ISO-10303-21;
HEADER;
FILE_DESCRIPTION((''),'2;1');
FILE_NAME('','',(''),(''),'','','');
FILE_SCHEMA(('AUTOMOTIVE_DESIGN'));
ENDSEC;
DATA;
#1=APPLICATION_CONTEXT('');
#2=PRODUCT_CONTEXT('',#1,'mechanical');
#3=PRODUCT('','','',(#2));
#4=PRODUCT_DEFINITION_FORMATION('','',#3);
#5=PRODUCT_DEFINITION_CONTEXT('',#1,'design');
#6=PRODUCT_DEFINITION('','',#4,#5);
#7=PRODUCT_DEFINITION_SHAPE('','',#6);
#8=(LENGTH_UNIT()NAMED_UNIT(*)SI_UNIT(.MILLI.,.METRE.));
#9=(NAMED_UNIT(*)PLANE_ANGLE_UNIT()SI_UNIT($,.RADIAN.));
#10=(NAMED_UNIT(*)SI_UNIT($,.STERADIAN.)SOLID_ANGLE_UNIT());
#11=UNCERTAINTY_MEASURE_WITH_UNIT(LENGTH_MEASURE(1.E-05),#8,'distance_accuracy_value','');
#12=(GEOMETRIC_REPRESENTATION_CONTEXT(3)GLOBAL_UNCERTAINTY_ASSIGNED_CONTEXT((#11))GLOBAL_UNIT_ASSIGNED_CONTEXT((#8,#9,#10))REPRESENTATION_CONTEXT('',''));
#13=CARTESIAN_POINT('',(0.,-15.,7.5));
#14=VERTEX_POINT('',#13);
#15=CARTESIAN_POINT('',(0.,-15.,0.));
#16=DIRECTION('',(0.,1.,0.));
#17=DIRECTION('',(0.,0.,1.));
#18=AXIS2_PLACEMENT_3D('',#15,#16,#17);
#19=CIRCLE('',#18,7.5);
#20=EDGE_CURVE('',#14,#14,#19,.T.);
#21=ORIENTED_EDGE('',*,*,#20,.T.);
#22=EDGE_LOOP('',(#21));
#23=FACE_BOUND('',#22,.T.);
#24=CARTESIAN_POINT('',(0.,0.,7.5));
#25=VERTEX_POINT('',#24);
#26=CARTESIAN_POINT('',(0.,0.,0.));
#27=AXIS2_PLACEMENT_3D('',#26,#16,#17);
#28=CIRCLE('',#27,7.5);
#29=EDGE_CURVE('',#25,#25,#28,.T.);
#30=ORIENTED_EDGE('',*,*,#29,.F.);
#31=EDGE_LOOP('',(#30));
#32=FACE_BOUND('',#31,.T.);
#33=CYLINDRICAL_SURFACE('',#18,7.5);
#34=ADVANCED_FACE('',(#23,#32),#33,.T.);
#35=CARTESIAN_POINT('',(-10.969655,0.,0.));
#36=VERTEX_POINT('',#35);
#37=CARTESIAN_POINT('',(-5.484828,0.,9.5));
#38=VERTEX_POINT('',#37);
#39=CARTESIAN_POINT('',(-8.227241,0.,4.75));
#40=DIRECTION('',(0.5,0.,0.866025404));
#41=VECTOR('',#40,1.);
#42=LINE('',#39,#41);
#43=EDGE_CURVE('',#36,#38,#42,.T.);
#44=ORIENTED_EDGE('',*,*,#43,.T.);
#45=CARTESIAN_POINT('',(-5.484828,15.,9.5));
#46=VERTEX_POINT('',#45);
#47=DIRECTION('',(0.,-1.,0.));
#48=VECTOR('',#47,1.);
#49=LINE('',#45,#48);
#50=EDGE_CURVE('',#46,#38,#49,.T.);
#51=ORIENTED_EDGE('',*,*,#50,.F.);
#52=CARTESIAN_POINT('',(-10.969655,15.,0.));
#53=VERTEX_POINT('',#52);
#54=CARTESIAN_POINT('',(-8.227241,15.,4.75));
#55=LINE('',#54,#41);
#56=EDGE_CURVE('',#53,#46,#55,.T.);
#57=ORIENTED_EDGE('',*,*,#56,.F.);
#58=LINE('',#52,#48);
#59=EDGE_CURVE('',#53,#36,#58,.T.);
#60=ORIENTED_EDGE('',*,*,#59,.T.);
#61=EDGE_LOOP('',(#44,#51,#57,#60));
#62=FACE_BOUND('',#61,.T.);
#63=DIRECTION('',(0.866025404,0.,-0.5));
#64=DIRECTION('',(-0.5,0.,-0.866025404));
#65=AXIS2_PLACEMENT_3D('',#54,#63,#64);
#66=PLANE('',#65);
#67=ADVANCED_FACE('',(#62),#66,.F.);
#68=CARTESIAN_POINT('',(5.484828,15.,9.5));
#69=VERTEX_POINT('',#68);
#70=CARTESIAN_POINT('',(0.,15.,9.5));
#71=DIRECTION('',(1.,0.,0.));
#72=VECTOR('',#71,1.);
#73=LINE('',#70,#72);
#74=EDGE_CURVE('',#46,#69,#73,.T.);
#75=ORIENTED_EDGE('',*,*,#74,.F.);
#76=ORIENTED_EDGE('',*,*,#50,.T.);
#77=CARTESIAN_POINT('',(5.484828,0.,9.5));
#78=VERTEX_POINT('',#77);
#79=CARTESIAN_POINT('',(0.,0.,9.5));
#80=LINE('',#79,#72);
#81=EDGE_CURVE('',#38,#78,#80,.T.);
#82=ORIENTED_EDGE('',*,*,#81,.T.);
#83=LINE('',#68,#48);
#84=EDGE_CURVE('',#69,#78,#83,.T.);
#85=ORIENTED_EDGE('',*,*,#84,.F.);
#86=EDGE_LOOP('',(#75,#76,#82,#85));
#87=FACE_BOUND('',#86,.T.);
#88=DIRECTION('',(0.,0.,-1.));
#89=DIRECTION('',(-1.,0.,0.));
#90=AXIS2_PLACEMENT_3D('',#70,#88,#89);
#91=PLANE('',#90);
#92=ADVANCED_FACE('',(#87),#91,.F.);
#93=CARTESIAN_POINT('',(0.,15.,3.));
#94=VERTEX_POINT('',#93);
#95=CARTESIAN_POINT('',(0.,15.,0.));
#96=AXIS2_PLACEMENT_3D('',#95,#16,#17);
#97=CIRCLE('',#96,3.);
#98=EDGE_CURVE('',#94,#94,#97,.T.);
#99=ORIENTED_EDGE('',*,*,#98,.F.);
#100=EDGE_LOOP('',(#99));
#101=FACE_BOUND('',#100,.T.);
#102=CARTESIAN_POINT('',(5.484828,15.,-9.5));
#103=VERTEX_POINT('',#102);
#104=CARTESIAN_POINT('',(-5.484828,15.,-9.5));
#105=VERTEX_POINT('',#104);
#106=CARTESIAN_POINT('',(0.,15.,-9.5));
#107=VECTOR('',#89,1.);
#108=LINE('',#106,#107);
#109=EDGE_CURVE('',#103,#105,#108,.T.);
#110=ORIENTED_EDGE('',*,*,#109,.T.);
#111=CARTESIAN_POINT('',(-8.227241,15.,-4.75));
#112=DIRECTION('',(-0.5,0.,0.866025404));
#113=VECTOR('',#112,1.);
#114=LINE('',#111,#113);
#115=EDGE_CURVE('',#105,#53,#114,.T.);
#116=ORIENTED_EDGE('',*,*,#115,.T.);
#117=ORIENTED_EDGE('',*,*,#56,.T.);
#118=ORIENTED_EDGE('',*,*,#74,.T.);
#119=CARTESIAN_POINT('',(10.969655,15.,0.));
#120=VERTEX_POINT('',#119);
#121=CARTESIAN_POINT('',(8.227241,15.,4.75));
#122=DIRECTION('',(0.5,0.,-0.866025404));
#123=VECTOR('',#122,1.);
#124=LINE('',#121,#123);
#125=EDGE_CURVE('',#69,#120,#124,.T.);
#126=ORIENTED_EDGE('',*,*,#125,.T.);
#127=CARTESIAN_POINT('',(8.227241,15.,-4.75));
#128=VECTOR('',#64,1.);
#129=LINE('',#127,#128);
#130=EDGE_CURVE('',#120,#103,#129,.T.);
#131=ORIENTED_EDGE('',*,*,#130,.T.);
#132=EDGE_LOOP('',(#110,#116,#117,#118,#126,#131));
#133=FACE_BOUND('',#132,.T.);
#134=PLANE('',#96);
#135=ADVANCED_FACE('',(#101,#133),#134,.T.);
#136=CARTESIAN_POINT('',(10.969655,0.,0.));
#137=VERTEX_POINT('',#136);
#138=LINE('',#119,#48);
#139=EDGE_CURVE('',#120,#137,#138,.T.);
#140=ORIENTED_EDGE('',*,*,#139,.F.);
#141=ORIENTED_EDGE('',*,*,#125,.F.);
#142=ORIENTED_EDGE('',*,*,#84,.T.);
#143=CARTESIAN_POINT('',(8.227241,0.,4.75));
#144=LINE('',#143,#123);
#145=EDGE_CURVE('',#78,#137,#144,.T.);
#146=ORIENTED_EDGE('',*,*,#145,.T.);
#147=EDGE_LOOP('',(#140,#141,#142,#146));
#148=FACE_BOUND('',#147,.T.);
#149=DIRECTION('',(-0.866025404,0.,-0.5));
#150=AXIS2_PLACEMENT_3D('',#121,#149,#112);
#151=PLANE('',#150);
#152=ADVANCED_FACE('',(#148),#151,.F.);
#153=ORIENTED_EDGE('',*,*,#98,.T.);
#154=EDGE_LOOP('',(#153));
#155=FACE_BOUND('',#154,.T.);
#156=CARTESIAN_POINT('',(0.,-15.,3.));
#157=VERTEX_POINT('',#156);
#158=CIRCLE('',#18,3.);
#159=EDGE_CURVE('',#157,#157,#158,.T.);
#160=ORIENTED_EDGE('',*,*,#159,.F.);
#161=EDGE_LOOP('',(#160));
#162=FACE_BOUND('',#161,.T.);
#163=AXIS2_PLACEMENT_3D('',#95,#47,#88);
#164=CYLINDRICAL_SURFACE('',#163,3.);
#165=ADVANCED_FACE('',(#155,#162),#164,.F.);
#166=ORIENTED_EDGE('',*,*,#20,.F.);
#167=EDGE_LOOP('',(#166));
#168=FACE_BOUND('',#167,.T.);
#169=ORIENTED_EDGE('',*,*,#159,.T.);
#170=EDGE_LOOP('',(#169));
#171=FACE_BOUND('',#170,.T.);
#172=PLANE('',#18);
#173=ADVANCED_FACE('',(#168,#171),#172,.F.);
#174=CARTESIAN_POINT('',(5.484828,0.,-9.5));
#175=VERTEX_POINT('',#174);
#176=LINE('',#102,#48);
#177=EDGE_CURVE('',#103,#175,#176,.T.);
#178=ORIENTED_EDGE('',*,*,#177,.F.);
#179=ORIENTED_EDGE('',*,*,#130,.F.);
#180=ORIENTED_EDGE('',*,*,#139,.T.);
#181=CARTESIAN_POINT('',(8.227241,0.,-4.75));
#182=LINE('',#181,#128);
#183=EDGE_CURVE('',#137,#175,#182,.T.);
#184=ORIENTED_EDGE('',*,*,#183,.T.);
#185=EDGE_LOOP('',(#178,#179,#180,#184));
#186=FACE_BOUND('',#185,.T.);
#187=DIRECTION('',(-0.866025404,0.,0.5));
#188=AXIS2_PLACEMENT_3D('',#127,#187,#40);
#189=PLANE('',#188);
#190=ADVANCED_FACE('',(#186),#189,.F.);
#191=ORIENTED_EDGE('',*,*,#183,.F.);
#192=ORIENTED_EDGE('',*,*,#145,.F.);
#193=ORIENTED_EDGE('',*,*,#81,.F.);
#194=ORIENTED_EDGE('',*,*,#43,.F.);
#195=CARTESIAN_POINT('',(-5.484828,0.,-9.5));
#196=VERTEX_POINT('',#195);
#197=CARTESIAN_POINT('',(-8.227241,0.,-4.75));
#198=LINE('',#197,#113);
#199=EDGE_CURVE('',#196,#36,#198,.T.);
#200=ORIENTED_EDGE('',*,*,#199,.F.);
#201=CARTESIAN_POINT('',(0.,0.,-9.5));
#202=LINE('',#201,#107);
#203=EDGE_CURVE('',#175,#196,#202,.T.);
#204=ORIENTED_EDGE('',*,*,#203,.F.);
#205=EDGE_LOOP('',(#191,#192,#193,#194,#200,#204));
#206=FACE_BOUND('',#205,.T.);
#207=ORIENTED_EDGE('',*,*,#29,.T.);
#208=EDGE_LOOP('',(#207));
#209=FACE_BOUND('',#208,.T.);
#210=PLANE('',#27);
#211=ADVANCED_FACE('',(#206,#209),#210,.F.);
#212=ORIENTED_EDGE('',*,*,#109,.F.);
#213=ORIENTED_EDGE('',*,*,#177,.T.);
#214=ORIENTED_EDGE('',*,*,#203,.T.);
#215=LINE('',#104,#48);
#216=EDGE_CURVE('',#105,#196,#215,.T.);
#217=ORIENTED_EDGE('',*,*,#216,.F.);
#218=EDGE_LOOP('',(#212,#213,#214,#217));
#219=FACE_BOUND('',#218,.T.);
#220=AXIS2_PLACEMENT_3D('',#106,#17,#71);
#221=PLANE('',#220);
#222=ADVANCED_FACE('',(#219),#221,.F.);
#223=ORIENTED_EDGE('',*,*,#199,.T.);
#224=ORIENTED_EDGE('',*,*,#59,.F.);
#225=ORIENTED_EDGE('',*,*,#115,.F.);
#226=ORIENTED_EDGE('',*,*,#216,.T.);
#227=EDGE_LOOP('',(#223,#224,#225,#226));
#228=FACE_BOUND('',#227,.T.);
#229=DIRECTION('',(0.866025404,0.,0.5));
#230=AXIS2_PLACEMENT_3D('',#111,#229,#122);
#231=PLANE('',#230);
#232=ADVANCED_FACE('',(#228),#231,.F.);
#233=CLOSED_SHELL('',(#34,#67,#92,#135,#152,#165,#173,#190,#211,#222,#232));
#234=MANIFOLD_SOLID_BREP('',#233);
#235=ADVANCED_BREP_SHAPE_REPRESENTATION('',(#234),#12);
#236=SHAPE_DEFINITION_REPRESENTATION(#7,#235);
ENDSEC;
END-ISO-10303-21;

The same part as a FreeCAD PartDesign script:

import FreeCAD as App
import Part
import Sketcher

V = App.Vector
Q = App.Units.Quantity


def add_polygon(sketch, points):
    """Adds a closed chain of lines whose ends are joined by coincident constraints."""
    first, n = sketch.GeometryCount, len(points)
    for a, b in zip(points, points[1:] + points[:1]):
        sketch.addGeometry(Part.LineSegment(App.Vector(*a, 0), App.Vector(*b, 0)), False)
    for i in range(n):
        sketch.addConstraint(Sketcher.Constraint("Coincident", first + i, 2, first + (i + 1) % n, 1))

doc = App.newDocument("Part")
body = doc.addObject("PartDesign::Body", "Body")

sketch1 = body.newObject("Sketcher::SketchObject", "Sketch")
sketch1.AttachmentSupport = (doc.getObject("XZ_Plane"), [""])
sketch1.MapMode = "FlatFace"
add_polygon(sketch1, [(-5.5, 9.5), (5.5, 9.5), (11, 0), (5.5, -9.5), (-5.5, -9.5), (-11, 0)])
sketch1.addGeometry(Part.Circle(V(0, 0, 0), V(0, 0, 1), 3), False)
sketch1.addConstraint([
    Sketcher.Constraint("Horizontal", 0),
    Sketcher.Constraint("Horizontal", 3),
    Sketcher.Constraint("Coincident", 6, 3, -1, 1),
    Sketcher.Constraint("Symmetric", 0, 2, 3, 2, -1, 1),
    Sketcher.Constraint("Symmetric", 1, 2, 4, 2, -1, 1),
    Sketcher.Constraint("PointOnObject", 1, 2, -1),
    Sketcher.Constraint("Parallel", 2, 5),
    Sketcher.Constraint("Vertical", 0, 2, 2, 2),
    Sketcher.Constraint("Diameter", 6, 6.0),
    Sketcher.Constraint("Angle", 1, Q("-60 deg")),
    Sketcher.Constraint("DistanceY", 2, 2, 0, 2, 19.0),
    Sketcher.Constraint("DistanceX", 0, 1, 0, 2, 10.969655),
])
pad1 = body.newObject("PartDesign::Pad", "Pad")
pad1.Profile = sketch1
pad1.Length = 15
pad1.Reversed = True

sketch2 = body.newObject("Sketcher::SketchObject", "Sketch001")
sketch2.AttachmentSupport = (doc.getObject("XZ_Plane"), [""])
sketch2.MapMode = "FlatFace"
sketch2.AttachmentOffset = App.Placement(V(0, 0, 15), App.Rotation())
sketch2.addGeometry([
    Part.Circle(V(0, 0, 0), V(0, 0, 1), 7.5),
    Part.Circle(V(0, 0, 0), V(0, 0, 1), 3),
], False)
sketch2.addConstraint([
    Sketcher.Constraint("Coincident", 0, 3, -1, 1),
    Sketcher.Constraint("Coincident", 1, 3, -1, 1),
    Sketcher.Constraint("Diameter", 0, 15.0),
    Sketcher.Constraint("Diameter", 1, 6.0),
])
pad2 = body.newObject("PartDesign::Pad", "Pad001")
pad2.Profile = sketch2
pad2.Length = 15
pad2.Reversed = True

doc.recompute()
